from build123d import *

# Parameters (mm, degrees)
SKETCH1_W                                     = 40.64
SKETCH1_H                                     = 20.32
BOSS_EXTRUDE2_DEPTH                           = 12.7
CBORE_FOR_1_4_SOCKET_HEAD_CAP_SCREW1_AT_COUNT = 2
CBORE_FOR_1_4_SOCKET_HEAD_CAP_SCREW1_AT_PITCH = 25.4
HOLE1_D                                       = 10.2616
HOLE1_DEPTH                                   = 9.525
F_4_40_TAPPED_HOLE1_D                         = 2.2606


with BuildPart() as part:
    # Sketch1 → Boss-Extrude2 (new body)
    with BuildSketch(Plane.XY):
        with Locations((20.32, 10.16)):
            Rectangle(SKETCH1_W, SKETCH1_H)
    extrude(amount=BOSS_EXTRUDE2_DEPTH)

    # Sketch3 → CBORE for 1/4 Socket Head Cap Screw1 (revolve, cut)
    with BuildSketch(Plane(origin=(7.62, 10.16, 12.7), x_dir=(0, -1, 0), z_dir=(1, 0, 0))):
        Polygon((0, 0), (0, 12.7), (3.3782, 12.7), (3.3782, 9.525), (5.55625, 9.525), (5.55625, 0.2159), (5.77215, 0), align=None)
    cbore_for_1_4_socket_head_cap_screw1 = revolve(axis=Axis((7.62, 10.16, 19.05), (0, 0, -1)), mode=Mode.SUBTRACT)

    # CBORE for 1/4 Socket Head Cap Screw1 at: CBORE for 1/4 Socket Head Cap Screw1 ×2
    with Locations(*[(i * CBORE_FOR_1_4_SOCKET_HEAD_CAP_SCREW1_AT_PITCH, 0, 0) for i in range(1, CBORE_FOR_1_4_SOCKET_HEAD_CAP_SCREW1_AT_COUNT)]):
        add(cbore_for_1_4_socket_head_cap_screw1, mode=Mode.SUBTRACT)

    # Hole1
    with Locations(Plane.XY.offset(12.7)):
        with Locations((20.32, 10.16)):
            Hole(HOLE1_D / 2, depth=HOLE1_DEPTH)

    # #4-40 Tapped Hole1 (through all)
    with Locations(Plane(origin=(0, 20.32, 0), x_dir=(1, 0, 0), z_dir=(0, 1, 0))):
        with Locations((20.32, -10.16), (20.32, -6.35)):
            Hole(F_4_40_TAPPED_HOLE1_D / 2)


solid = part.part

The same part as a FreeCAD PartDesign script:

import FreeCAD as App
import Part
import Sketcher
Q = App.Units.Quantity


def add_polygon(sketch, points):
    """Adds a closed chain of lines whose ends are joined by coincident constraints."""
    first, n = sketch.GeometryCount, len(points)
    for a, b in zip(points, points[1:] + points[:1]):
        sketch.addGeometry(Part.LineSegment(App.Vector(*a, 0), App.Vector(*b, 0)), False)
    for i in range(n):
        sketch.addConstraint(Sketcher.Constraint("Coincident", first + i, 2, first + (i + 1) % n, 1))

doc = App.newDocument("Part")
body = doc.addObject("PartDesign::Body", "Body")

sketch1 = body.newObject("Sketcher::SketchObject", "Sketch")
sketch1.AttachmentSupport = (doc.getObject("XY_Plane"), [""])
sketch1.MapMode = "FlatFace"
add_polygon(sketch1, [(0, 20.32), (0, 0), (40.64, 0), (40.64, 20.32)])
sketch1.addConstraint(Sketcher.Constraint("Vertical", 0))
sketch1.addConstraint(Sketcher.Constraint("Horizontal", 1))
sketch1.addConstraint(Sketcher.Constraint("Vertical", 2))
sketch1.addConstraint(Sketcher.Constraint("Horizontal", 3))
sketch1.addConstraint(Sketcher.Constraint("Coincident", 0, 2, -1, 1))
sketch1.addConstraint(Sketcher.Constraint("DistanceX", 1, 1, 1, 2, Q("1.6 in")))
sketch1.addConstraint(Sketcher.Constraint("DistanceY", 0, 2, 0, 1, Q("0.8 in")))
pad1 = body.newObject("PartDesign::Pad", "Pad")
pad1.Profile = sketch1
pad1.Length = Q("0.5 in")

sketch2 = body.newObject("Sketcher::SketchObject", "Sketch001")
sketch2.AttachmentSupport = (doc.getObject("YZ_Plane"), [""])
sketch2.MapMode = "FlatFace"
sketch2.AttachmentOffset = App.Placement(App.Vector(0, 0, 0.3 * 25.4), App.Rotation())
add_polygon(sketch2, [(10.16, 0), (10.16, 12.7), (4.38785, 12.7), (4.60375, 12.4841), (4.60375, 3.175), (6.7818, 3.175), (6.7818, 0)])
sketch2.addGeometry(Part.LineSegment(App.Vector(10.16, 12.7, 0), App.Vector(10.16, 0, 0)), True)
sketch2.addConstraint(Sketcher.Constraint("Vertical", 0))
sketch2.addConstraint(Sketcher.Constraint("Horizontal", 1))
sketch2.addConstraint(Sketcher.Constraint("Vertical", 3))
sketch2.addConstraint(Sketcher.Constraint("Horizontal", 4))
sketch2.addConstraint(Sketcher.Constraint("Vertical", 5))
sketch2.addConstraint(Sketcher.Constraint("Horizontal", 6))
sketch2.addConstraint(Sketcher.Constraint("Vertical", 7))
sketch2.addConstraint(Sketcher.Constraint("Coincident", 7, 1, 0, 2))
sketch2.addConstraint(Sketcher.Constraint("PointOnObject", 5, 2, -1))
sketch2.addConstraint(Sketcher.Constraint("PointOnObject", 7, 2, -1))
sketch2.addConstraint(Sketcher.Constraint("DistanceY", 0, 1, 0, 2, Q("0.5 in")))
sketch2.addConstraint(Sketcher.Constraint("Angle", 2, Q("-45 deg")))
sketch2.addConstraint(Sketcher.Constraint("DistanceX", -1, 1, 0, 2, Q("0.4 in")))
sketch2.addConstraint(Sketcher.Constraint("DistanceX", 6, 1, 6, 2, Q("0.133 in")))
sketch2.addConstraint(Sketcher.Constraint("DistanceY", 5, 2, 5, 1, Q("0.125 in")))
sketch2.addConstraint(Sketcher.Constraint("DistanceY", 3, 2, 3, 1, Q("0.3665 in")))
sketch2.addConstraint(Sketcher.Constraint("DistanceX", 2, 2, 0, 2, Q("0.21875 in")))
groove = body.newObject("PartDesign::Groove", "Groove")
groove.Profile = sketch2
groove.ReferenceAxis = (sketch2, ["Axis0"])
groove.Angle = 360
doc.recompute()

linearpattern = body.newObject("PartDesign::LinearPattern", "LinearPattern")
linearpattern.Originals = [groove]
linearpattern.Direction = (doc.getObject("X_Axis"), [""])
linearpattern.Mode = "offset"
linearpattern.Offset = Q("1 in")
linearpattern.Occurrences = 2
body.Tip = linearpattern

sketch3 = body.newObject("Sketcher::SketchObject", "Sketch002")
sketch3.AttachmentSupport = (doc.getObject("XY_Plane"), [""])
sketch3.MapMode = "FlatFace"
sketch3.AttachmentOffset = App.Placement(App.Vector(0, 0, 0.5 * 25.4), App.Rotation())
sketch3.addGeometry(Part.Circle(App.Vector(20.32, 10.16, 0), App.Vector(0, 0, 1), 5.1308), False)
sketch3.addConstraint(Sketcher.Constraint("Diameter", 0, Q("0.404 in")))
sketch3.addConstraint(Sketcher.Constraint("DistanceX", -1, 1, 0, 3, Q("0.8 in")))
sketch3.addConstraint(Sketcher.Constraint("DistanceY", -1, 1, 0, 3, Q("0.4 in")))
doc.recompute()
hole = body.newObject("PartDesign::Hole", "Hole")
hole.Profile = sketch3
hole.ThreadType = "None"
hole.Diameter = Q("0.404 in")
hole.DepthType = "Dimension"
hole.Depth = Q("0.375 in")
hole.DrillPoint = "Flat"

sketch4 = body.newObject("Sketcher::SketchObject", "Sketch003")
sketch4.AttachmentSupport = (doc.getObject("XZ_Plane"), [""])
sketch4.MapMode = "FlatFace"
sketch4.AttachmentOffset = App.Placement(App.Vector(0, 0, -0.8 * 25.4), App.Rotation())
sketch4.addGeometry(Part.Circle(App.Vector(20.32, 10.16, 0), App.Vector(0, 0, 1), 1.1303), False)
sketch4.addGeometry(Part.Circle(App.Vector(20.32, 6.35, 0), App.Vector(0, 0, 1), 1.1303), False)
sketch4.addConstraint(Sketcher.Constraint("Equal", 0, 1))
sketch4.addConstraint(Sketcher.Constraint("Vertical", 0, 3, 1, 3))
sketch4.addConstraint(Sketcher.Constraint("Diameter", 0, Q("0.089 in")))
sketch4.addConstraint(Sketcher.Constraint("DistanceX", -1, 1, 0, 3, Q("0.8 in")))
sketch4.addConstraint(Sketcher.Constraint("DistanceY", -1, 1, 0, 3, Q("0.4 in")))
sketch4.addConstraint(Sketcher.Constraint("DistanceY", -1, 1, 1, 3, Q("0.25 in")))
doc.recompute()
hole2 = body.newObject("PartDesign::Hole", "Hole001")
hole2.Profile = sketch4
hole2.ThreadType = "None"
hole2.Diameter = Q("0.089 in")
hole2.DepthType = "ThroughAll"
hole2.Reversed = True

doc.recompute()
